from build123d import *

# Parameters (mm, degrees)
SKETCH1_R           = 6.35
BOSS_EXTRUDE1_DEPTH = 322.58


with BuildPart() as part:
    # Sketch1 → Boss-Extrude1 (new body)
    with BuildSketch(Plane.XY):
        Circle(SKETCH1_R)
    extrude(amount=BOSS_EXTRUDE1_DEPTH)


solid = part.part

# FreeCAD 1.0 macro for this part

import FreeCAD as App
import Part
import Sketcher
from FreeCAD import Vector
Q = App.Units.Quantity

doc = App.newDocument("Part")
params = doc.addObject("Spreadsheet::Sheet", "Params")
for row, (alias, value) in enumerate([
    ("sketch1_diameter", "0.5 in"),
    ("pad1_length", "12.7 in"),
], start=1):
    params.set(f"A{row}", alias)
    params.set(f"B{row}", "=" + value)
    params.setAlias(f"B{row}", alias)

body = doc.addObject("PartDesign::Body", "Body")

# Sketch on XY plane
sketch1 = body.newObject("Sketcher::SketchObject", "Sketch")
sketch1.AttachmentSupport = (doc.getObject("XY_Plane"), [""])
sketch1.MapMode = "FlatFace"
sketch1.addGeometry(Part.Circle(Vector(0, 0, 0), Vector(0, 0, 1), 6), False)
sketch1.addConstraint(Sketcher.Constraint("Coincident", 0, 3, -1, 1))
sketch1.addConstraint(Sketcher.Constraint("Diameter", 0, Q("0.5 in")))
sketch1.setExpression("Constraints[1]", "Params.sketch1_diameter")
pad1 = body.newObject("PartDesign::Pad", "Pad")
pad1.Profile = sketch1
pad1.setExpression("Length", "Params.pad1_length")

doc.recompute()
